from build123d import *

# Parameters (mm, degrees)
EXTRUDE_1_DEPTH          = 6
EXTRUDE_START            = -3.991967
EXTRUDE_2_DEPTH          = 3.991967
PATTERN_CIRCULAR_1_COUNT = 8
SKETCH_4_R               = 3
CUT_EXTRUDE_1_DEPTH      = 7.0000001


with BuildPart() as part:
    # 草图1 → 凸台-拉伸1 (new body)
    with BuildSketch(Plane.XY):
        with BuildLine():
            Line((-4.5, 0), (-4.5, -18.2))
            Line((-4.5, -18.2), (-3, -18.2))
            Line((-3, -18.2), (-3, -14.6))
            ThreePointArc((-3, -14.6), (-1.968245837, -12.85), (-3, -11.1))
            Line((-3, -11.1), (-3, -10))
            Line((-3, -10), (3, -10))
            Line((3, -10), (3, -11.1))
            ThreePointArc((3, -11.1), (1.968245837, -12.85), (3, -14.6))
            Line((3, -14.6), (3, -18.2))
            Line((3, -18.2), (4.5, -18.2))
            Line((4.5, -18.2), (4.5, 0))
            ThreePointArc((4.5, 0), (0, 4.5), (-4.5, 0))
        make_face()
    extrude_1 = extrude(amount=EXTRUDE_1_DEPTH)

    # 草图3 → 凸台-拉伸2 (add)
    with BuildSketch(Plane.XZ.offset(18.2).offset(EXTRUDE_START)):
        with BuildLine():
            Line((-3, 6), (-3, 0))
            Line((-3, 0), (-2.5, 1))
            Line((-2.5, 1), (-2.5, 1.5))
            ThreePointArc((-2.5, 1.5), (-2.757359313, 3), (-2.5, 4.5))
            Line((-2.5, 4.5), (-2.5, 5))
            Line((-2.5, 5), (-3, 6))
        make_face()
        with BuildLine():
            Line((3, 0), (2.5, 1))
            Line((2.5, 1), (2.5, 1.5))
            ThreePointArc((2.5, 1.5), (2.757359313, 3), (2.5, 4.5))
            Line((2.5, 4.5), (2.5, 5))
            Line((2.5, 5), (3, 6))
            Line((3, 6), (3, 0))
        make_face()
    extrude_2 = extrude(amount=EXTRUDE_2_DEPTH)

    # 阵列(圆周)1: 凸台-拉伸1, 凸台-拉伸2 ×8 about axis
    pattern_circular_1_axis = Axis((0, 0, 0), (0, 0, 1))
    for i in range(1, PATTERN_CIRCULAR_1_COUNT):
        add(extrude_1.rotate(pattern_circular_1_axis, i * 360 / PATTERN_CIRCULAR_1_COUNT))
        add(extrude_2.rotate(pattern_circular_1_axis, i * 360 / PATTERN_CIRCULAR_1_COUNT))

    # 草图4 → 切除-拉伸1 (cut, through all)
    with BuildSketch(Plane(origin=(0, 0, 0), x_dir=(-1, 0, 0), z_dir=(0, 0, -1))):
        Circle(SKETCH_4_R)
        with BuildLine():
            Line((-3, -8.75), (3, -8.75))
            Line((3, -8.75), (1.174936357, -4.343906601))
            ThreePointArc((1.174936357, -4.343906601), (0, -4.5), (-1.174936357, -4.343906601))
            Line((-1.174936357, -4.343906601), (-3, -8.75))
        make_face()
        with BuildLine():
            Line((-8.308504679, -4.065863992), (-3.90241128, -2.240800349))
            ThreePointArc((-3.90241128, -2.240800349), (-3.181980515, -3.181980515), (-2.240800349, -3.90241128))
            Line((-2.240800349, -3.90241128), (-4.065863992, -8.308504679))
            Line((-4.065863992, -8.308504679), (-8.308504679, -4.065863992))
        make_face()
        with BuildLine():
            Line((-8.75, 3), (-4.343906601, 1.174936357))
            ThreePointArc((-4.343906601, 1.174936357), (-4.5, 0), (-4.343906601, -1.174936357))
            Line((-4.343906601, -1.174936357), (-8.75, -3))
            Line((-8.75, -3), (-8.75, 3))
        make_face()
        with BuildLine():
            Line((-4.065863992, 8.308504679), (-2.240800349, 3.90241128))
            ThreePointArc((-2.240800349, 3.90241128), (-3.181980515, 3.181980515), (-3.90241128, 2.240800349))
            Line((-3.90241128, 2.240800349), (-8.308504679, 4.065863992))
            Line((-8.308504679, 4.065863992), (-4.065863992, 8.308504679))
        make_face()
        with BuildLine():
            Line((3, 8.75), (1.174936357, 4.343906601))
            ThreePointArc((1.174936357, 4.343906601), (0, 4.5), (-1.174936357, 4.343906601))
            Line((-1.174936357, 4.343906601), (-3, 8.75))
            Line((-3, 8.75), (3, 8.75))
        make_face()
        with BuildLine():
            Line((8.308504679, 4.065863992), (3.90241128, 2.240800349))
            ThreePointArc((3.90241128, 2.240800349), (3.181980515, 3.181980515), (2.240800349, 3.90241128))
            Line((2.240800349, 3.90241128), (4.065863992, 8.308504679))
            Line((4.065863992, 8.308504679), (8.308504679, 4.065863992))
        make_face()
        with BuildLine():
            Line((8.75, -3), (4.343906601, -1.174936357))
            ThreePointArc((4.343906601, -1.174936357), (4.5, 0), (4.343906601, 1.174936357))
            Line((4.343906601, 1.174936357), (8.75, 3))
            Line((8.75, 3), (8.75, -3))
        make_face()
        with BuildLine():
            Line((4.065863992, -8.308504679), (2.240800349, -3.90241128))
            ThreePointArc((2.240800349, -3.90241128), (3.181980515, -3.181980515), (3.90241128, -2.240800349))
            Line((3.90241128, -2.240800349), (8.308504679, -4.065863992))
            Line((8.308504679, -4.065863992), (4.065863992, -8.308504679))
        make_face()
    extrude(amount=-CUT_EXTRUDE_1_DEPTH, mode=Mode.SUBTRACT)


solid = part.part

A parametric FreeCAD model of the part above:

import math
import FreeCAD as App
import Part
import Sketcher
Q = App.Units.Quantity

doc = App.newDocument("Part")
params = doc.addObject("Spreadsheet::Sheet", "Params")
for row, (alias, value) in enumerate([
    ("sketch1_radius", "2 mm"),
    ("sketch1_radius2", "4.5 mm"),
    ("sketch1_width", "6 mm"),
    ("sketch1_height", "18.2 mm"),
    ("sketch1_height2", "3.6 mm"),
    ("pad1_length", "6 mm"),
    ("sketch2_radius", "4.5 mm"),
    ("sketch2_height", "6 mm"),
    ("sketch2_height2", "0.5 mm"),
    ("pad2_length", "3.991967 mm"),
    ("sketch3_diameter", "6 mm"),
    ("sketch3_radius", "4.5 mm"),
    ("sketch3_width", "6 mm"),
    ("sketch3_length", "6 mm"),
], start=1):
    params.set(f"A{row}", alias)
    params.set(f"B{row}", "=" + value)
    params.setAlias(f"B{row}", alias)

body = doc.addObject("PartDesign::Body", "Body")

# Sketch on XY plane
sketch1 = body.newObject("Sketcher::SketchObject", "Sketch")
sketch1.AttachmentSupport = (doc.getObject("XY_Plane"), [""])
sketch1.MapMode = "FlatFace"
sketch1.addGeometry(Part.LineSegment(App.Vector(-4.5, 0, 0), App.Vector(-4.5, -18.2, 0)), False)
sketch1.addGeometry(Part.LineSegment(App.Vector(-4.5, -18.2, 0), App.Vector(-3, -18.2, 0)), False)
sketch1.addGeometry(Part.LineSegment(App.Vector(-3, -18.2, 0), App.Vector(-3, -14.6, 0)), False)
sketch1.addGeometry(Part.ArcOfCircle(Part.Circle(App.Vector(-3.968246, -12.85, 0), App.Vector(0, 0, 1), 2), math.radians(-61.044976), math.radians(61.044976)), False)
sketch1.addGeometry(Part.LineSegment(App.Vector(-3, -11.1, 0), App.Vector(-3, -10, 0)), False)
sketch1.addGeometry(Part.LineSegment(App.Vector(-3, -10, 0), App.Vector(3, -10, 0)), False)
sketch1.addGeometry(Part.LineSegment(App.Vector(3, -10, 0), App.Vector(3, -11.1, 0)), False)
sketch1.addGeometry(Part.ArcOfCircle(Part.Circle(App.Vector(3.968246, -12.85, 0), App.Vector(0, 0, 1), 2), math.radians(118.955024), math.radians(241.044976)), False)
sketch1.addGeometry(Part.LineSegment(App.Vector(3, -14.6, 0), App.Vector(3, -18.2, 0)), False)
sketch1.addGeometry(Part.LineSegment(App.Vector(3, -18.2, 0), App.Vector(4.5, -18.2, 0)), False)
sketch1.addGeometry(Part.LineSegment(App.Vector(4.5, -18.2, 0), App.Vector(4.5, 0, 0)), False)
sketch1.addGeometry(Part.ArcOfCircle(Part.Circle(App.Vector(0, 0, 0), App.Vector(0, 0, 1), 4.5), math.radians(0), math.radians(180)), False)
sketch1.addConstraint(Sketcher.Constraint("Coincident", 0, 2, 1, 1))
sketch1.addConstraint(Sketcher.Constraint("Coincident", 1, 2, 2, 1))
sketch1.addConstraint(Sketcher.Constraint("Coincident", 2, 2, 3, 1))
sketch1.addConstraint(Sketcher.Constraint("Coincident", 3, 2, 4, 1))
sketch1.addConstraint(Sketcher.Constraint("Coincident", 4, 2, 5, 1))
sketch1.addConstraint(Sketcher.Constraint("Coincident", 5, 2, 6, 1))
sketch1.addConstraint(Sketcher.Constraint("Coincident", 6, 2, 7, 1))
sketch1.addConstraint(Sketcher.Constraint("Coincident", 7, 2, 8, 1))
sketch1.addConstraint(Sketcher.Constraint("Coincident", 8, 2, 9, 1))
sketch1.addConstraint(Sketcher.Constraint("Coincident", 9, 2, 10, 1))
sketch1.addConstraint(Sketcher.Constraint("Tangent", 10, 2, 11, 1))
sketch1.addConstraint(Sketcher.Constraint("Tangent", 11, 2, 0, 1))
sketch1.addConstraint(Sketcher.Constraint("Vertical", 0))
sketch1.addConstraint(Sketcher.Constraint("Horizontal", 1))
sketch1.addConstraint(Sketcher.Constraint("Vertical", 2))
sketch1.addConstraint(Sketcher.Constraint("Vertical", 4))
sketch1.addConstraint(Sketcher.Constraint("Horizontal", 5))
sketch1.addConstraint(Sketcher.Constraint("Vertical", 6))
sketch1.addConstraint(Sketcher.Constraint("Vertical", 8))
sketch1.addConstraint(Sketcher.Constraint("Horizontal", 9))
sketch1.addConstraint(Sketcher.Constraint("Vertical", 10))
sketch1.addConstraint(Sketcher.Constraint("Coincident", 11, 3, -1, 1))
sketch1.addConstraint(Sketcher.Constraint("Equal", 3, 7))
sketch1.addConstraint(Sketcher.Constraint("Symmetric", 3, 3, 7, 3, -2))
sketch1.addConstraint(Sketcher.Constraint("Symmetric", 1, 2, 8, 2, -2))
sketch1.addConstraint(Sketcher.Constraint("Horizontal", 3, 2, 6, 2))
sketch1.addConstraint(Sketcher.Constraint("Vertical", 2, 2, 3, 2))
sketch1.addConstraint(Sketcher.Constraint("Radius", 3, 2.0))
sketch1.addConstraint(Sketcher.Constraint("Radius", 11, 4.5))
sketch1.addConstraint(Sketcher.Constraint("DistanceX", 5, 1, 5, 2, 6.0))
sketch1.addConstraint(Sketcher.Constraint("DistanceY", 0, 2, 0, 1, 18.2))
sketch1.addConstraint(Sketcher.Constraint("DistanceY", 2, 1, 2, 2, 3.6))
sketch1.addConstraint(Sketcher.Constraint("DistanceY", 4, 1, 4, 2, 1.1))
sketch1.addConstraint(Sketcher.Constraint("DistanceY", 4, 2, -1, 1, 10.0))
sketch1.setExpression("Constraints[27]", "Params.sketch1_radius")
sketch1.setExpression("Constraints[28]", "Params.sketch1_radius2")
sketch1.setExpression("Constraints[29]", "Params.sketch1_width")
sketch1.setExpression("Constraints[30]", "Params.sketch1_height")
sketch1.setExpression("Constraints[31]", "Params.sketch1_height2")
pad1 = body.newObject("PartDesign::Pad", "Pad")
pad1.Profile = sketch1
pad1.setExpression("Length", "Params.pad1_length")

# Sketch on XZ plane
sketch2 = body.newObject("Sketcher::SketchObject", "Sketch001")
sketch2.AttachmentSupport = (doc.getObject("XZ_Plane"), [""])
sketch2.MapMode = "FlatFace"
sketch2.AttachmentOffset = App.Placement(App.Vector(0, 0, 14.208033), App.Rotation())
sketch2.addGeometry(Part.LineSegment(App.Vector(-3, 6, 0), App.Vector(-3, 0, 0)), False)
sketch2.addGeometry(Part.LineSegment(App.Vector(-3, 0, 0), App.Vector(-2.5, 1, 0)), False)
sketch2.addGeometry(Part.LineSegment(App.Vector(-2.5, 1, 0), App.Vector(-2.5, 1.5, 0)), False)
sketch2.addGeometry(Part.ArcOfCircle(Part.Circle(App.Vector(1.742641, 3, 0), App.Vector(0, 0, 1), 4.5), math.radians(160.528779), math.radians(199.471221)), False)
sketch2.addGeometry(Part.LineSegment(App.Vector(-2.5, 4.5, 0), App.Vector(-2.5, 5, 0)), False)
sketch2.addGeometry(Part.LineSegment(App.Vector(-2.5, 5, 0), App.Vector(-3, 6, 0)), False)
sketch2.addGeometry(Part.LineSegment(App.Vector(2.5, 1, 0), App.Vector(3, 0, 0)), False)
sketch2.addGeometry(Part.LineSegment(App.Vector(3, 0, 0), App.Vector(3, 6, 0)), False)
sketch2.addGeometry(Part.LineSegment(App.Vector(3, 6, 0), App.Vector(2.5, 5, 0)), False)
sketch2.addGeometry(Part.LineSegment(App.Vector(2.5, 5, 0), App.Vector(2.5, 4.5, 0)), False)
sketch2.addGeometry(Part.ArcOfCircle(Part.Circle(App.Vector(-1.742641, 3, 0), App.Vector(0, 0, 1), 4.5), math.radians(-19.471221), math.radians(19.471221)), False)
sketch2.addGeometry(Part.LineSegment(App.Vector(2.5, 1.5, 0), App.Vector(2.5, 1, 0)), False)
sketch2.addConstraint(Sketcher.Constraint("Coincident", 0, 2, 1, 1))
sketch2.addConstraint(Sketcher.Constraint("Coincident", 1, 2, 2, 1))
sketch2.addConstraint(Sketcher.Constraint("Coincident", 2, 2, 3, 2))
sketch2.addConstraint(Sketcher.Constraint("Coincident", 3, 1, 4, 1))
sketch2.addConstraint(Sketcher.Constraint("Coincident", 4, 2, 5, 1))
sketch2.addConstraint(Sketcher.Constraint("Coincident", 5, 2, 0, 1))
sketch2.addConstraint(Sketcher.Constraint("Coincident", 6, 2, 7, 1))
sketch2.addConstraint(Sketcher.Constraint("Coincident", 7, 2, 8, 1))
sketch2.addConstraint(Sketcher.Constraint("Coincident", 8, 2, 9, 1))
sketch2.addConstraint(Sketcher.Constraint("Coincident", 9, 2, 10, 2))
sketch2.addConstraint(Sketcher.Constraint("Coincident", 10, 1, 11, 1))
sketch2.addConstraint(Sketcher.Constraint("Coincident", 11, 2, 6, 1))
sketch2.addConstraint(Sketcher.Constraint("Vertical", 0))
sketch2.addConstraint(Sketcher.Constraint("Vertical", 2))
sketch2.addConstraint(Sketcher.Constraint("Vertical", 4))
sketch2.addConstraint(Sketcher.Constraint("Vertical", 7))
sketch2.addConstraint(Sketcher.Constraint("Vertical", 9))
sketch2.addConstraint(Sketcher.Constraint("Vertical", 11))
sketch2.addConstraint(Sketcher.Constraint("Equal", 3, 10))
sketch2.addConstraint(Sketcher.Constraint("Symmetric", 0, 2, 6, 2, -1, 1))
sketch2.addConstraint(Sketcher.Constraint("Symmetric", 3, 3, 10, 3, -2))
sketch2.addConstraint(Sketcher.Constraint("Symmetric", 4, 2, 8, 2, -2))
sketch2.addConstraint(Sketcher.Constraint("Symmetric", 1, 2, 11, 2, -2))
sketch2.addConstraint(Sketcher.Constraint("PointOnObject", 0, 2, -1))
sketch2.addConstraint(Sketcher.Constraint("Parallel", 5, 6))
sketch2.addConstraint(Sketcher.Constraint("Parallel", 1, 8))
sketch2.addConstraint(Sketcher.Constraint("Vertical", 2, 2, 3, 1))
sketch2.addConstraint(Sketcher.Constraint("Equal", 2, 4))
sketch2.addConstraint(Sketcher.Constraint("Radius", 3, 4.5))
sketch2.addConstraint(Sketcher.Constraint("DistanceY", 0, 2, 0, 1, 6.0))
sketch2.addConstraint(Sketcher.Constraint("DistanceY", 2, 1, 2, 2, 0.5))
sketch2.addConstraint(Sketcher.Constraint("DistanceX", 0, 2, -1, 1, 3.0))
sketch2.addConstraint(Sketcher.Constraint("DistanceY", -1, 1, 1, 2, 1.0))
sketch2.addConstraint(Sketcher.Constraint("DistanceX", 4, 2, 8, 2, 5.0))
sketch2.setExpression("Constraints[28]", "Params.sketch2_radius")
sketch2.setExpression("Constraints[29]", "Params.sketch2_height")
sketch2.setExpression("Constraints[30]", "Params.sketch2_height2")
pad2 = body.newObject("PartDesign::Pad", "Pad001")
pad2.Profile = sketch2
pad2.setExpression("Length", "Params.pad2_length")
doc.recompute()

polarpattern = body.newObject("PartDesign::PolarPattern", "PolarPattern")
polarpattern.Originals = [pad1, pad2]
polarpattern.Axis = (doc.getObject("Z_Axis"), [""])
polarpattern.Angle = 360
polarpattern.Occurrences = 8
body.Tip = polarpattern

# Sketch on XY plane
sketch3 = body.newObject("Sketcher::SketchObject", "Sketch002")
sketch3.AttachmentSupport = (doc.getObject("XY_Plane"), [""])
sketch3.MapMode = "FlatFace"
sketch3.addGeometry(Part.Circle(App.Vector(0, 0, 0), App.Vector(0, 0, 1), 3), False)
sketch3.addGeometry(Part.LineSegment(App.Vector(3, -8.75, 0), App.Vector(-3, -8.75, 0)), False)
sketch3.addGeometry(Part.LineSegment(App.Vector(-3, -8.75, 0), App.Vector(-1.174936, -4.343907, 0)), False)
sketch3.addGeometry(Part.ArcOfCircle(Part.Circle(App.Vector(0, 0, 0), App.Vector(0, 0, 1), 4.5), math.radians(-105.135162), math.radians(-74.864838)), False)
sketch3.addGeometry(Part.LineSegment(App.Vector(1.174936, -4.343907, 0), App.Vector(3, -8.75, 0)), False)
sketch3.addGeometry(Part.LineSegment(App.Vector(3.902411, -2.2408, 0), App.Vector(8.308505, -4.065864, 0)), False)
sketch3.addGeometry(Part.LineSegment(App.Vector(8.308505, -4.065864, 0), App.Vector(4.065864, -8.308505, 0)), False)
sketch3.addGeometry(Part.LineSegment(App.Vector(4.065864, -8.308505, 0), App.Vector(2.2408, -3.902411, 0)), False)
sketch3.addGeometry(Part.ArcOfCircle(Part.Circle(App.Vector(0, 0, 0), App.Vector(0, 0, 1), 4.5), math.radians(-60.135162), math.radians(-29.864838)), False)
sketch3.addGeometry(Part.LineSegment(App.Vector(4.343907, 1.174936, 0), App.Vector(8.75, 3, 0)), False)
sketch3.addGeometry(Part.LineSegment(App.Vector(8.75, 3, 0), App.Vector(8.75, -3, 0)), False)
sketch3.addGeometry(Part.LineSegment(App.Vector(8.75, -3, 0), App.Vector(4.343907, -1.174936, 0)), False)
sketch3.addGeometry(Part.ArcOfCircle(Part.Circle(App.Vector(0, 0, 0), App.Vector(0, 0, 1), 4.5), math.radians(-15.135162), math.radians(15.135162)), False)
sketch3.addGeometry(Part.LineSegment(App.Vector(2.2408, 3.902411, 0), App.Vector(4.065864, 8.308505, 0)), False)
sketch3.addGeometry(Part.LineSegment(App.Vector(4.065864, 8.308505, 0), App.Vector(8.308505, 4.065864, 0)), False)
sketch3.addGeometry(Part.LineSegment(App.Vector(8.308505, 4.065864, 0), App.Vector(3.902411, 2.2408, 0)), False)
sketch3.addGeometry(Part.ArcOfCircle(Part.Circle(App.Vector(0, 0, 0), App.Vector(0, 0, 1), 4.5), math.radians(29.864838), math.radians(60.135162)), False)
sketch3.addGeometry(Part.LineSegment(App.Vector(-1.174936, 4.343907, 0), App.Vector(-3, 8.75, 0)), False)
sketch3.addGeometry(Part.LineSegment(App.Vector(-3, 8.75, 0), App.Vector(3, 8.75, 0)), False)
sketch3.addGeometry(Part.LineSegment(App.Vector(3, 8.75, 0), App.Vector(1.174936, 4.343907, 0)), False)
sketch3.addGeometry(Part.ArcOfCircle(Part.Circle(App.Vector(0, 0, 0), App.Vector(0, 0, 1), 4.5), math.radians(74.864838), math.radians(105.135162)), False)
sketch3.addGeometry(Part.LineSegment(App.Vector(-3.902411, 2.2408, 0), App.Vector(-8.308505, 4.065864, 0)), False)
sketch3.addGeometry(Part.LineSegment(App.Vector(-8.308505, 4.065864, 0), App.Vector(-4.065864, 8.308505, 0)), False)
sketch3.addGeometry(Part.LineSegment(App.Vector(-4.065864, 8.308505, 0), App.Vector(-2.2408, 3.902411, 0)), False)
sketch3.addGeometry(Part.ArcOfCircle(Part.Circle(App.Vector(0, 0, 0), App.Vector(0, 0, 1), 4.5), math.radians(119.864838), math.radians(150.135162)), False)
sketch3.addGeometry(Part.LineSegment(App.Vector(-4.343907, -1.174936, 0), App.Vector(-8.75, -3, 0)), False)
sketch3.addGeometry(Part.LineSegment(App.Vector(-8.75, -3, 0), App.Vector(-8.75, 3, 0)), False)
sketch3.addGeometry(Part.LineSegment(App.Vector(-8.75, 3, 0), App.Vector(-4.343907, 1.174936, 0)), False)
sketch3.addGeometry(Part.ArcOfCircle(Part.Circle(App.Vector(0, 0, 0), App.Vector(0, 0, 1), 4.5), math.radians(164.864838), math.radians(195.135162)), False)
sketch3.addGeometry(Part.LineSegment(App.Vector(-2.2408, -3.902411, 0), App.Vector(-4.065864, -8.308505, 0)), False)
sketch3.addGeometry(Part.LineSegment(App.Vector(-4.065864, -8.308505, 0), App.Vector(-8.308505, -4.065864, 0)), False)
sketch3.addGeometry(Part.LineSegment(App.Vector(-8.308505, -4.065864, 0), App.Vector(-3.902411, -2.2408, 0)), False)
sketch3.addGeometry(Part.ArcOfCircle(Part.Circle(App.Vector(0, 0, 0), App.Vector(0, 0, 1), 4.5), math.radians(-150.135162), math.radians(-119.864838)), False)
sketch3.addConstraint(Sketcher.Constraint("Coincident", 1, 2, 2, 1))
sketch3.addConstraint(Sketcher.Constraint("Coincident", 2, 2, 3, 1))
sketch3.addConstraint(Sketcher.Constraint("Coincident", 3, 2, 4, 1))
sketch3.addConstraint(Sketcher.Constraint("Coincident", 4, 2, 1, 1))
sketch3.addConstraint(Sketcher.Constraint("Coincident", 5, 2, 6, 1))
sketch3.addConstraint(Sketcher.Constraint("Coincident", 6, 2, 7, 1))
sketch3.addConstraint(Sketcher.Constraint("Coincident", 7, 2, 8, 1))
sketch3.addConstraint(Sketcher.Constraint("Coincident", 8, 2, 5, 1))
sketch3.addConstraint(Sketcher.Constraint("Coincident", 9, 2, 10, 1))
sketch3.addConstraint(Sketcher.Constraint("Coincident", 10, 2, 11, 1))
sketch3.addConstraint(Sketcher.Constraint("Coincident", 11, 2, 12, 1))
sketch3.addConstraint(Sketcher.Constraint("Coincident", 12, 2, 9, 1))
sketch3.addConstraint(Sketcher.Constraint("Coincident", 13, 2, 14, 1))
sketch3.addConstraint(Sketcher.Constraint("Coincident", 14, 2, 15, 1))
sketch3.addConstraint(Sketcher.Constraint("Coincident", 15, 2, 16, 1))
sketch3.addConstraint(Sketcher.Constraint("Coincident", 16, 2, 13, 1))
sketch3.addConstraint(Sketcher.Constraint("Coincident", 17, 2, 18, 1))
sketch3.addConstraint(Sketcher.Constraint("Coincident", 18, 2, 19, 1))
sketch3.addConstraint(Sketcher.Constraint("Coincident", 19, 2, 20, 1))
sketch3.addConstraint(Sketcher.Constraint("Coincident", 20, 2, 17, 1))
sketch3.addConstraint(Sketcher.Constraint("Coincident", 21, 2, 22, 1))
sketch3.addConstraint(Sketcher.Constraint("Coincident", 22, 2, 23, 1))
sketch3.addConstraint(Sketcher.Constraint("Coincident", 23, 2, 24, 1))
sketch3.addConstraint(Sketcher.Constraint("Coincident", 24, 2, 21, 1))
sketch3.addConstraint(Sketcher.Constraint("Coincident", 25, 2, 26, 1))
sketch3.addConstraint(Sketcher.Constraint("Coincident", 26, 2, 27, 1))
sketch3.addConstraint(Sketcher.Constraint("Coincident", 27, 2, 28, 1))
sketch3.addConstraint(Sketcher.Constraint("Coincident", 28, 2, 25, 1))
sketch3.addConstraint(Sketcher.Constraint("Coincident", 29, 2, 30, 1))
sketch3.addConstraint(Sketcher.Constraint("Coincident", 30, 2, 31, 1))
sketch3.addConstraint(Sketcher.Constraint("Coincident", 31, 2, 32, 1))
sketch3.addConstraint(Sketcher.Constraint("Coincident", 32, 2, 29, 1))
sketch3.addConstraint(Sketcher.Constraint("Horizontal", 1))
sketch3.addConstraint(Sketcher.Constraint("Vertical", 10))
sketch3.addConstraint(Sketcher.Constraint("Horizontal", 18))
sketch3.addConstraint(Sketcher.Constraint("Vertical", 26))
sketch3.addConstraint(Sketcher.Constraint("Coincident", 0, 3, -1, 1))
sketch3.addConstraint(Sketcher.Constraint("Coincident", 3, 3, -1, 1))
sketch3.addConstraint(Sketcher.Constraint("Coincident", 8, 3, -1, 1))
sketch3.addConstraint(Sketcher.Constraint("Coincident", 12, 3, -1, 1))
sketch3.addConstraint(Sketcher.Constraint("Coincident", 16, 3, -1, 1))
sketch3.addConstraint(Sketcher.Constraint("Coincident", 20, 3, -1, 1))
sketch3.addConstraint(Sketcher.Constraint("Coincident", 24, 3, -1, 1))
sketch3.addConstraint(Sketcher.Constraint("Coincident", 28, 3, -1, 1))
sketch3.addConstraint(Sketcher.Constraint("Coincident", 32, 3, -1, 1))
sketch3.addConstraint(Sketcher.Constraint("Equal", 3, 8))
sketch3.addConstraint(Sketcher.Constraint("Equal", 8, 12))
sketch3.addConstraint(Sketcher.Constraint("Equal", 12, 16))
sketch3.addConstraint(Sketcher.Constraint("Equal", 16, 20))
sketch3.addConstraint(Sketcher.Constraint("Equal", 20, 24))
sketch3.addConstraint(Sketcher.Constraint("Equal", 24, 28))
sketch3.addConstraint(Sketcher.Constraint("Equal", 28, 32))
sketch3.addConstraint(Sketcher.Constraint("Symmetric", 4, 2, 17, 2, -1, 1))
sketch3.addConstraint(Sketcher.Constraint("Symmetric", 5, 2, 21, 2, -1, 1))
sketch3.addConstraint(Sketcher.Constraint("Symmetric", 6, 2, 22, 2, -1, 1))
sketch3.addConstraint(Sketcher.Constraint("Symmetric", 9, 2, 25, 2, -1, 1))
sketch3.addConstraint(Sketcher.Constraint("Symmetric", 13, 2, 29, 2, -1, 1))
sketch3.addConstraint(Sketcher.Constraint("Symmetric", 14, 2, 30, 2, -1, 1))
sketch3.addConstraint(Sketcher.Constraint("Symmetric", 14, 2, 21, 2, -2))
sketch3.addConstraint(Sketcher.Constraint("Symmetric", 13, 2, 22, 2, -2))
sketch3.addConstraint(Sketcher.Constraint("Perpendicular", 2, 5))
sketch3.addConstraint(Sketcher.Constraint("Parallel", 4, 7))
sketch3.addConstraint(Sketcher.Constraint("Perpendicular", 7, 9))
sketch3.addConstraint(Sketcher.Constraint("Parallel", 5, 11))
sketch3.addConstraint(Sketcher.Constraint("Perpendicular", 11, 13))
sketch3.addConstraint(Sketcher.Constraint("Perpendicular", 6, 14))
sketch3.addConstraint(Sketcher.Constraint("Parallel", 9, 15))
sketch3.addConstraint(Sketcher.Constraint("Perpendicular", 15, 17))
sketch3.addConstraint(Sketcher.Constraint("Parallel", 13, 19))
sketch3.addConstraint(Sketcher.Constraint("Perpendicular", 19, 21))
sketch3.addConstraint(Sketcher.Constraint("Parallel", 17, 23))
sketch3.addConstraint(Sketcher.Constraint("Perpendicular", 23, 25))
sketch3.addConstraint(Sketcher.Constraint("Parallel", 21, 27))
sketch3.addConstraint(Sketcher.Constraint("Perpendicular", 27, 29))
sketch3.addConstraint(Sketcher.Constraint("Parallel", 25, 31))
sketch3.addConstraint(Sketcher.Constraint("Horizontal", 2, 2, 3, 2))
sketch3.addConstraint(Sketcher.Constraint("Horizontal", 19, 2, 20, 2))
sketch3.addConstraint(Sketcher.Constraint("Horizontal", 16, 2, 23, 2))
sketch3.addConstraint(Sketcher.Constraint("Horizontal", 10, 2, 25, 2))
sketch3.addConstraint(Sketcher.Constraint("Horizontal", 9, 2, 26, 2))
sketch3.addConstraint(Sketcher.Constraint("Equal", 18, 10))
sketch3.addConstraint(Sketcher.Constraint("Equal", 4, 5))
sketch3.addConstraint(Sketcher.Constraint("Equal", 5, 7))
sketch3.addConstraint(Sketcher.Constraint("Equal", 7, 9))
sketch3.addConstraint(Sketcher.Constraint("Diameter", 0, 6.0))
sketch3.addConstraint(Sketcher.Constraint("Radius", 3, 4.5))
sketch3.addConstraint(Sketcher.Constraint("DistanceX", 1, 2, 1, 1, 6.0))
sketch3.addConstraint(Sketcher.Constraint("Distance", 6, 6.0))
sketch3.addConstraint(Sketcher.Constraint("Angle", 2, Q("67.5 deg")))
sketch3.addConstraint(Sketcher.Constraint("DistanceY", 1, 2, -1, 1, 8.75))
sketch3.setExpression("Constraints[84]", "Params.sketch3_diameter")
sketch3.setExpression("Constraints[85]", "Params.sketch3_radius")
sketch3.setExpression("Constraints[86]", "Params.sketch3_width")
sketch3.setExpression("Constraints[87]", "Params.sketch3_length")
pocket1 = body.newObject("PartDesign::Pocket", "Pocket")
pocket1.Profile = sketch3
pocket1.Type = "ThroughAll"
pocket1.Reversed = True

doc.recompute()
